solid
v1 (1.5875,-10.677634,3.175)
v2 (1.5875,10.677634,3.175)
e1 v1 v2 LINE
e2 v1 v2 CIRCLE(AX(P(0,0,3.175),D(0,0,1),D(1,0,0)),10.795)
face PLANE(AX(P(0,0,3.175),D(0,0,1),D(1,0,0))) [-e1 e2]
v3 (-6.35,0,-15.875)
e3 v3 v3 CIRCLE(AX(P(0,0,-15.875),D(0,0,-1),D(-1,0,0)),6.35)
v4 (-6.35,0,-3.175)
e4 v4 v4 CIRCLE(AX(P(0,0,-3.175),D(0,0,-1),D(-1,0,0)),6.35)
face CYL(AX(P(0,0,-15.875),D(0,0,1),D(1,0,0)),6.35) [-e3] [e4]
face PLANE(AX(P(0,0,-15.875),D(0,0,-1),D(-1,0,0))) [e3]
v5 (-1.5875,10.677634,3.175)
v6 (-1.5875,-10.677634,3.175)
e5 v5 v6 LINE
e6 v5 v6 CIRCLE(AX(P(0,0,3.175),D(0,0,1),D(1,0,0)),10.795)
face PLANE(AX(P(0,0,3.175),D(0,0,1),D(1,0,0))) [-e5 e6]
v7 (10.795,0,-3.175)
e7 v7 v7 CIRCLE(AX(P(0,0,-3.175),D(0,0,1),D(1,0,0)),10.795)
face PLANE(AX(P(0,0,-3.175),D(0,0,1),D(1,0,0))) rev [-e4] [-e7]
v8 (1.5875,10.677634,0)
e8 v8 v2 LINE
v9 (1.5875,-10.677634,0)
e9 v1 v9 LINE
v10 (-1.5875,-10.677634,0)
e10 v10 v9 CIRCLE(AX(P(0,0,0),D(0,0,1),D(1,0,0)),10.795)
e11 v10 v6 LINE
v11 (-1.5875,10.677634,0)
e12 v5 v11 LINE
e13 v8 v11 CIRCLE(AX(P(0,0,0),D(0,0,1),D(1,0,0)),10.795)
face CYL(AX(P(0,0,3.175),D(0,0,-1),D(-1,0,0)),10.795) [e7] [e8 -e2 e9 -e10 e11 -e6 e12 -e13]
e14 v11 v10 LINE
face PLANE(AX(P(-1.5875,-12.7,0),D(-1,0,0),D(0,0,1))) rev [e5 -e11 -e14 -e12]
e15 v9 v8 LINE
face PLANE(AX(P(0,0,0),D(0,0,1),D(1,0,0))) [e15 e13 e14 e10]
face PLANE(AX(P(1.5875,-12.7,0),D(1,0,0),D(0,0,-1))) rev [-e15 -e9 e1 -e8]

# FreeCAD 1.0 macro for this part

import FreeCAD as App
import Part
import Sketcher
Q = App.Units.Quantity

doc = App.newDocument("Part")
params = doc.addObject("Spreadsheet::Sheet", "Params")
for row, (alias, value) in enumerate([
    ("sketch1_diameter", "0.85 in"),
    ("pad1_length", "0.25 in"),
    ("sketch2_diameter", "0.5 in"),
    ("pad2_length", "0.5 in"),
    ("sketch3_height", "1 in"),
    ("sketch3_width", "0.125 in"),
    ("pocket1_length", "0.125 in"),
], start=1):
    params.set(f"A{row}", alias)
    params.set(f"B{row}", "=" + value)
    params.setAlias(f"B{row}", alias)

body = doc.addObject("PartDesign::Body", "Body")

# Sketch on XY plane
sketch1 = body.newObject("Sketcher::SketchObject", "Sketch")
sketch1.AttachmentSupport = (doc.getObject("XY_Plane"), [""])
sketch1.MapMode = "FlatFace"
sketch1.addGeometry(Part.Circle(App.Vector(0, 0, 0), App.Vector(0, 0, 1), 11), False)
sketch1.addConstraint([
    Sketcher.Constraint("Coincident", 0, 3, -1, 1),
    Sketcher.Constraint("Diameter", 0, Q("0.85 in")),
])
sketch1.setExpression("Constraints[1]", "Params.sketch1_diameter")
pad1 = body.newObject("PartDesign::Pad", "Pad")
pad1.Profile = sketch1
pad1.setExpression("Length", "Params.pad1_length")
pad1.Midplane = True

# Sketch on XY plane
sketch2 = body.newObject("Sketcher::SketchObject", "Sketch001")
sketch2.AttachmentSupport = (doc.getObject("XY_Plane"), [""])
sketch2.MapMode = "FlatFace"
sketch2.AttachmentOffset = App.Placement(App.Vector(0, 0, -0.125 * 25.4), App.Rotation())
sketch2.addGeometry(Part.Circle(App.Vector(0, 0, 0), App.Vector(0, 0, 1), 6), False)
sketch2.addConstraint([
    Sketcher.Constraint("Coincident", 0, 3, -1, 1),
    Sketcher.Constraint("Diameter", 0, Q("0.5 in")),
])
sketch2.setExpression("Constraints[1]", "Params.sketch2_diameter")
pad2 = body.newObject("PartDesign::Pad", "Pad001")
pad2.Profile = sketch2
pad2.setExpression("Length", "Params.pad2_length")
pad2.Reversed = True

# Sketch on XY plane
sketch3 = body.newObject("Sketcher::SketchObject", "Sketch002")
sketch3.AttachmentSupport = (doc.getObject("XY_Plane"), [""])
sketch3.MapMode = "FlatFace"
sketch3.AttachmentOffset = App.Placement(App.Vector(0, 0, 0.125 * 25.4), App.Rotation())
sketch3.addGeometry([
    Part.LineSegment(App.Vector(-1.6, 12.7, 0), App.Vector(-1.6, -12.7, 0)),
    Part.LineSegment(App.Vector(-1.6, -12.7, 0), App.Vector(1.6, -12.7, 0)),
    Part.LineSegment(App.Vector(1.6, -12.7, 0), App.Vector(1.6, 12.7, 0)),
    Part.LineSegment(App.Vector(1.6, 12.7, 0), App.Vector(-1.6, 12.7, 0)),
], False)
sketch3.addConstraint([
    Sketcher.Constraint("Coincident", 0, 2, 1, 1),
    Sketcher.Constraint("Coincident", 1, 2, 2, 1),
    Sketcher.Constraint("Coincident", 2, 2, 3, 1),
    Sketcher.Constraint("Coincident", 3, 2, 0, 1),
    Sketcher.Constraint("Vertical", 0),
    Sketcher.Constraint("Horizontal", 1),
    Sketcher.Constraint("Vertical", 2),
    Sketcher.Constraint("Horizontal", 3),
    Sketcher.Constraint("Symmetric", 0, 2, 2, 2, -1, 1),
    Sketcher.Constraint("DistanceY", 0, 2, 0, 1, Q("1 in")),
    Sketcher.Constraint("DistanceX", 1, 1, 1, 2, Q("0.125 in")),
])
sketch3.setExpression("Constraints[9]", "Params.sketch3_height")
sketch3.setExpression("Constraints[10]", "Params.sketch3_width")
pocket1 = body.newObject("PartDesign::Pocket", "Pocket")
pocket1.Profile = sketch3
pocket1.setExpression("Length", "Params.pocket1_length")

doc.recompute()
